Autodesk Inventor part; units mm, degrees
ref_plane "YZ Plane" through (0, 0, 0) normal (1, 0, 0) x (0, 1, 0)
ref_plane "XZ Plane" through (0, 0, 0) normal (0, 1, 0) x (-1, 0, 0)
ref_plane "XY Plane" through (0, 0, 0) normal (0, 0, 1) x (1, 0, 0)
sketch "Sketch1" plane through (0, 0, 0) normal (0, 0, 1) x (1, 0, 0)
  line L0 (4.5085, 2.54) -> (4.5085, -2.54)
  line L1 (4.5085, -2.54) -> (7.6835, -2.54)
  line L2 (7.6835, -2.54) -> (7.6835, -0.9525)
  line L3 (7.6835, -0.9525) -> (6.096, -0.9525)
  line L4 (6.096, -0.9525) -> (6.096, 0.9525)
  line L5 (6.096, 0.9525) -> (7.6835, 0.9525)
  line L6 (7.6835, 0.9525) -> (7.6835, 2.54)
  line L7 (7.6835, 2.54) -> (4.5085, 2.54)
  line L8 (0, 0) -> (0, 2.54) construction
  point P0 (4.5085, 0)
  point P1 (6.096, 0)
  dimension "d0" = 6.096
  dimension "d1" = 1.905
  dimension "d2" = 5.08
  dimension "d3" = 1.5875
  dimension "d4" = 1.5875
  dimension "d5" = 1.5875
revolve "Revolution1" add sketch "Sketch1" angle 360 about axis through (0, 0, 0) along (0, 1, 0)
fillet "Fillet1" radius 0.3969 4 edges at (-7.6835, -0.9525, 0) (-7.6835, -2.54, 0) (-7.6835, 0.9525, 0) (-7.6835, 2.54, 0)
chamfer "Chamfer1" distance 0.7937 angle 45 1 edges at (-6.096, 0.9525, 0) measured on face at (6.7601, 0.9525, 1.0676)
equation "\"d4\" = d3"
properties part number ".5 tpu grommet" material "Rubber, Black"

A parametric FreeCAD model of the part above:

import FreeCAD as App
import Part
import Sketcher

V = App.Vector
Q = App.Units.Quantity


def edges_at(feature, points):
    """Names of the edges that pass closest to the given points."""
    edges = feature.Shape.Edges
    near = lambda p: min(range(len(edges)), key=lambda i: edges[i].distToShape(Part.Vertex(*p))[0])
    return sorted({f"Edge{near(p) + 1}" for p in points})

doc = App.newDocument("Part")
body = doc.addObject("PartDesign::Body", "Body")

# Sketch on XY plane
sketch1 = body.newObject("Sketcher::SketchObject", "Sketch")
sketch1.AttachmentSupport = (doc.getObject("XY_Plane"), [""])
sketch1.MapMode = "FlatFace"
sketch1.addGeometry(Part.LineSegment(V(7.6835, 2.54, 0), V(4.5085, 2.54, 0)), False)
sketch1.addGeometry(Part.LineSegment(V(4.5085, 2.54, 0), V(4.5085, -2.54, 0)), False)
sketch1.addGeometry(Part.LineSegment(V(4.5085, -2.54, 0), V(7.6835, -2.54, 0)), False)
sketch1.addGeometry(Part.LineSegment(V(7.6835, -2.54, 0), V(7.6835, -0.9525, 0)), False)
sketch1.addGeometry(Part.LineSegment(V(7.6835, -0.9525, 0), V(6.096, -0.9525, 0)), False)
sketch1.addGeometry(Part.LineSegment(V(6.096, -0.9525, 0), V(6.096, 0.9525, 0)), False)
sketch1.addGeometry(Part.LineSegment(V(6.096, 0.9525, 0), V(7.6835, 0.9525, 0)), False)
sketch1.addGeometry(Part.LineSegment(V(7.6835, 0.9525, 0), V(7.6835, 2.54, 0)), False)
sketch1.addConstraint(Sketcher.Constraint("Coincident", 0, 2, 1, 1))
sketch1.addConstraint(Sketcher.Constraint("Coincident", 1, 2, 2, 1))
sketch1.addConstraint(Sketcher.Constraint("Coincident", 2, 2, 3, 1))
sketch1.addConstraint(Sketcher.Constraint("Coincident", 3, 2, 4, 1))
sketch1.addConstraint(Sketcher.Constraint("Coincident", 4, 2, 5, 1))
sketch1.addConstraint(Sketcher.Constraint("Coincident", 5, 2, 6, 1))
sketch1.addConstraint(Sketcher.Constraint("Coincident", 6, 2, 7, 1))
sketch1.addConstraint(Sketcher.Constraint("Coincident", 7, 2, 0, 1))
sketch1.addConstraint(Sketcher.Constraint("Horizontal", 0))
sketch1.addConstraint(Sketcher.Constraint("Vertical", 1))
sketch1.addConstraint(Sketcher.Constraint("Horizontal", 2))
sketch1.addConstraint(Sketcher.Constraint("Vertical", 3))
sketch1.addConstraint(Sketcher.Constraint("Horizontal", 4))
sketch1.addConstraint(Sketcher.Constraint("Vertical", 5))
sketch1.addConstraint(Sketcher.Constraint("Horizontal", 6))
sketch1.addConstraint(Sketcher.Constraint("Vertical", 7))
sketch1.addConstraint(Sketcher.Constraint("Symmetric", 3, 2, 6, 2, -1))
sketch1.addConstraint(Sketcher.Constraint("Equal", 6, 3))
sketch1.addConstraint(Sketcher.Constraint("Equal", 3, 7))
sketch1.addConstraint(Sketcher.Constraint("DistanceY", 1, 2, 1, 1, Q("0.2 in")))
sketch1.addConstraint(Sketcher.Constraint("DistanceX", 4, 2, 4, 1, Q("0.0625 in")))
sketch1.addConstraint(Sketcher.Constraint("DistanceX", -1, 1, 4, 2, Q("0.24 in")))
sketch1.addConstraint(Sketcher.Constraint("DistanceX", 1, 2, 4, 2, Q("0.0625 in")))
revolution = body.newObject("PartDesign::Revolution", "Revolution")
revolution.Profile = sketch1
revolution.ReferenceAxis = (sketch1, ["V_Axis"])
revolution.Angle = 360
doc.recompute()

fillet = body.newObject("PartDesign::Fillet", "Fillet")
fillet.Base = (revolution, edges_at(revolution, [
    (-7.684, -0.953, 0),
    (-7.684, -2.54, 0),
    (-7.684, 0.953, 0),
    (-7.684, 2.54, 0),
]))
fillet.Radius = Q("0.015626 in")
doc.recompute()

chamfer = body.newObject("PartDesign::Chamfer", "Chamfer")
chamfer.Base = (fillet, edges_at(fillet, [(-6.096, 0.953, 0)]))
chamfer.Size = Q("0.031248 in")

doc.recompute()
